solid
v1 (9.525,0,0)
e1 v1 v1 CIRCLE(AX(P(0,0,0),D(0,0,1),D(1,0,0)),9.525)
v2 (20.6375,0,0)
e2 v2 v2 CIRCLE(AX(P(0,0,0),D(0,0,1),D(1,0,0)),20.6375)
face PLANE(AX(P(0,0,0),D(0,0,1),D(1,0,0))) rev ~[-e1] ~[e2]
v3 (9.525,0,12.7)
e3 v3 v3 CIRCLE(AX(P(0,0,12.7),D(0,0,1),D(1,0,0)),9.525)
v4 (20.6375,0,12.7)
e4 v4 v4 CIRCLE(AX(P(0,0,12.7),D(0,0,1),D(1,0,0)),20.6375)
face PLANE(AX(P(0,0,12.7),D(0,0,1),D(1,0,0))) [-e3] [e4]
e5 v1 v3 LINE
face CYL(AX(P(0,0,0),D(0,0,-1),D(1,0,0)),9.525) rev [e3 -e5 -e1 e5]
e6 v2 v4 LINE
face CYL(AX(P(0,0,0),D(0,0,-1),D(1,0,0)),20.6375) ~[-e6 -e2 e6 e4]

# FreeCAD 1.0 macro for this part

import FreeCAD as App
import Part
import Sketcher
from FreeCAD import Vector
Q = App.Units.Quantity

doc = App.newDocument("Part")
body = doc.addObject("PartDesign::Body", "Body")

# Sketch on XY plane
sketch1 = body.newObject("Sketcher::SketchObject", "Sketch")
sketch1.AttachmentSupport = (doc.getObject("XY_Plane"), [""])
sketch1.MapMode = "FlatFace"
sketch1.addGeometry([
    Part.Circle(Vector(0, 0, 0), Vector(0, 0, 1), 21),
    Part.Circle(Vector(0, 0, 0), Vector(0, 0, 1), 10),
], False)
sketch1.addConstraint([
    Sketcher.Constraint("Coincident", 0, 3, -1, 1),
    Sketcher.Constraint("Coincident", 1, 3, -1, 1),
    Sketcher.Constraint("Diameter", 1, Q("0.75 in")),
    Sketcher.Constraint("Diameter", 0, Q("1.625 in")),
])
pad1 = body.newObject("PartDesign::Pad", "Pad")
pad1.Profile = sketch1
pad1.Length = Q("0.5 in")

doc.recompute()
